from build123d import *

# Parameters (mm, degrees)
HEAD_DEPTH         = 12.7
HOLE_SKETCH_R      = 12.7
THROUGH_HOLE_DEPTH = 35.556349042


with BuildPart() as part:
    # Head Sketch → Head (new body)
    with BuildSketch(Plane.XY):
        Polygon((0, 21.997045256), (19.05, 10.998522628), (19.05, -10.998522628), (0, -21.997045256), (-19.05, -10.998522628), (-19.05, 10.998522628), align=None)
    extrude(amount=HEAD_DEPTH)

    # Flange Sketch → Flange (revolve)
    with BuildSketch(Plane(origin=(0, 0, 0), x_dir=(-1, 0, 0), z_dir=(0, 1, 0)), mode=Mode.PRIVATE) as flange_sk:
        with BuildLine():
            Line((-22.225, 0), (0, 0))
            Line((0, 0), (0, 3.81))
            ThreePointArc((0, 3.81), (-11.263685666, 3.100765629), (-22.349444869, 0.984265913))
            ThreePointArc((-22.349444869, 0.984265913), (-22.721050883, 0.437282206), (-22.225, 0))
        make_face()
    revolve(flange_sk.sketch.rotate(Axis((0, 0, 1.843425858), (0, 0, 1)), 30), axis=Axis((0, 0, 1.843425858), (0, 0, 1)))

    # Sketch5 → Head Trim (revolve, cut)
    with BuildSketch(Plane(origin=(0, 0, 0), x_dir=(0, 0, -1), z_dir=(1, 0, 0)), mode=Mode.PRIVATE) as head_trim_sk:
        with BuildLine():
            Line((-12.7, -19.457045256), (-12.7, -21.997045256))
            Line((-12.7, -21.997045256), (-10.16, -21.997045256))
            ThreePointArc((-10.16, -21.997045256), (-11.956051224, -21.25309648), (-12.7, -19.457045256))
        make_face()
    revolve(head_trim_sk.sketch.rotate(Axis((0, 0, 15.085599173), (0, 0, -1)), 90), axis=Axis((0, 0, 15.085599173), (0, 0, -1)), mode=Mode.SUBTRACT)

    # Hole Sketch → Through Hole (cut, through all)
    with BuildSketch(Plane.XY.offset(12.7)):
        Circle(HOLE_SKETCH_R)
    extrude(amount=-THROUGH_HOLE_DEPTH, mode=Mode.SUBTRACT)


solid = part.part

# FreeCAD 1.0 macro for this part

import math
import FreeCAD as App
import Part
import Sketcher
from FreeCAD import Vector
Q = App.Units.Quantity

doc = App.newDocument("Part")
body = doc.addObject("PartDesign::Body", "Body")

# Sketch on XY plane
sketch1 = body.newObject("Sketcher::SketchObject", "Sketch")
sketch1.AttachmentSupport = (doc.getObject("XY_Plane"), [""])
sketch1.MapMode = "FlatFace"
sketch1.addGeometry([
    Part.LineSegment(Vector(19, 11, 0), Vector(0, 22, 0)),  # 0
    Part.LineSegment(Vector(0, 22, 0), Vector(-19, 11, 0)),  # 1
    Part.LineSegment(Vector(-19, 11, 0), Vector(-19, -11, 0)),  # 2
    Part.LineSegment(Vector(-19, -11, 0), Vector(0, -22, 0)),  # 3
    Part.LineSegment(Vector(0, -22, 0), Vector(19, -11, 0)),  # 4
    Part.LineSegment(Vector(19, -11, 0), Vector(19, 11, 0)),  # 5
], False)
sketch1.addConstraint([
    Sketcher.Constraint("Coincident", 0, 2, 1, 1),
    Sketcher.Constraint("Coincident", 1, 2, 2, 1),
    Sketcher.Constraint("Coincident", 2, 2, 3, 1),
    Sketcher.Constraint("Coincident", 3, 2, 4, 1),
    Sketcher.Constraint("Coincident", 4, 2, 5, 1),
    Sketcher.Constraint("Coincident", 5, 2, 0, 1),
    Sketcher.Constraint("Vertical", 2),
    Sketcher.Constraint("Vertical", 5),
    Sketcher.Constraint("Symmetric", 0, 2, 3, 2, -1, 1),
    Sketcher.Constraint("Symmetric", 1, 2, 4, 2, -1, 1),
    Sketcher.Constraint("PointOnObject", 0, 2, -2),
    Sketcher.Constraint("Parallel", 0, 3),
    Sketcher.Constraint("Horizontal", 2, 2, 4, 2),
    Sketcher.Constraint("Angle", 0, Q("150 deg")),
    Sketcher.Constraint("DistanceX", 2, 2, 4, 2, Q("1.5 in")),
    Sketcher.Constraint("DistanceY", 2, 2, 2, 1, Q("21.997045 mm")),
])
pad1 = body.newObject("PartDesign::Pad", "Pad")
pad1.Profile = sketch1
pad1.Length = Q("0.5 in")

# Sketch on XZ plane
sketch2 = body.newObject("Sketcher::SketchObject", "Sketch001")
sketch2.AttachmentSupport = (doc.getObject("XZ_Plane"), [""])
sketch2.MapMode = "FlatFace"
sketch2.addGeometry([
    Part.LineSegment(Vector(22.2, 0, 0), Vector(0, 0, 0)),
    Part.LineSegment(Vector(0, 0, 0), Vector(0, 3.8, 0)),
    Part.ArcOfCircle(Part.Circle(Vector(0, -86, 0), Vector(0, 0, 1), 89.8), math.radians(75.59), math.radians(90)),
    Part.ArcOfCircle(Part.Circle(Vector(22.2, 0.5, 0), Vector(0, 0, 1), 0.5), math.radians(-90), math.radians(76)),
], False)
sketch2.addConstraint([
    Sketcher.Constraint("Coincident", 0, 2, 1, 1),
    Sketcher.Constraint("Coincident", 1, 2, 2, 2),
    Sketcher.Constraint("Tangent", 2, 1, 3, 2),
    Sketcher.Constraint("Tangent", 3, 1, 0, 1),
    Sketcher.Constraint("Horizontal", 0),
    Sketcher.Constraint("Vertical", 1),
    Sketcher.Constraint("Coincident", 0, 2, -1, 1),
    Sketcher.Constraint("PointOnObject", 2, 3, -2),
    Sketcher.Constraint("DistanceY", 1, 1, 1, 2, Q("0.15 in")),
    Sketcher.Constraint("DistanceX", 0, 2, 0, 1, Q("0.875 in")),
    Sketcher.Constraint("Radius", 3, Q("0.5 mm")),
])
revolution = body.newObject("PartDesign::Revolution", "Revolution")
revolution.Profile = sketch2
revolution.ReferenceAxis = (sketch2, ["V_Axis"])
revolution.Angle = 360

# Sketch on YZ plane
sketch3 = body.newObject("Sketcher::SketchObject", "Sketch002")
sketch3.AttachmentSupport = (doc.getObject("YZ_Plane"), [""])
sketch3.MapMode = "FlatFace"
sketch3.addGeometry([
    Part.LineSegment(Vector(-19.5, 12.7, 0), Vector(-22, 12.7, 0)),
    Part.LineSegment(Vector(-22, 12.7, 0), Vector(-22, 10.2, 0)),
    Part.ArcOfCircle(Part.Circle(Vector(-19.5, 10.2, 0), Vector(0, 0, 1), 2.5), math.radians(90), math.radians(180)),
], False)
sketch3.addConstraint([
    Sketcher.Constraint("Coincident", 0, 2, 1, 1),
    Sketcher.Constraint("Tangent", 1, 2, 2, 2),
    Sketcher.Constraint("Tangent", 2, 1, 0, 1),
    Sketcher.Constraint("Horizontal", 0),
    Sketcher.Constraint("Vertical", 1),
    Sketcher.Constraint("Radius", 2, Q("0.1 in")),
    Sketcher.Constraint("DistanceY", -1, 1, 2, 3, Q("0.4 in")),
    Sketcher.Constraint("DistanceX", 2, 3, -1, 1, Q("19.457045 mm")),
])
groove = body.newObject("PartDesign::Groove", "Groove")
groove.Profile = sketch3
groove.ReferenceAxis = (sketch3, ["V_Axis"])
groove.Angle = 360

# Sketch on XY plane
sketch4 = body.newObject("Sketcher::SketchObject", "Sketch003")
sketch4.AttachmentSupport = (doc.getObject("XY_Plane"), [""])
sketch4.MapMode = "FlatFace"
sketch4.AttachmentOffset = App.Placement(Vector(0, 0, 0.5 * 25.4), App.Rotation())
sketch4.addGeometry(Part.Circle(Vector(0, 0, 0), Vector(0, 0, 1), 13), False)
sketch4.addConstraint([
    Sketcher.Constraint("Coincident", 0, 3, -1, 1),
    Sketcher.Constraint("Diameter", 0, Q("1 in")),
])
pocket1 = body.newObject("PartDesign::Pocket", "Pocket")
pocket1.Profile = sketch4
pocket1.Type = "ThroughAll"

doc.recompute()
